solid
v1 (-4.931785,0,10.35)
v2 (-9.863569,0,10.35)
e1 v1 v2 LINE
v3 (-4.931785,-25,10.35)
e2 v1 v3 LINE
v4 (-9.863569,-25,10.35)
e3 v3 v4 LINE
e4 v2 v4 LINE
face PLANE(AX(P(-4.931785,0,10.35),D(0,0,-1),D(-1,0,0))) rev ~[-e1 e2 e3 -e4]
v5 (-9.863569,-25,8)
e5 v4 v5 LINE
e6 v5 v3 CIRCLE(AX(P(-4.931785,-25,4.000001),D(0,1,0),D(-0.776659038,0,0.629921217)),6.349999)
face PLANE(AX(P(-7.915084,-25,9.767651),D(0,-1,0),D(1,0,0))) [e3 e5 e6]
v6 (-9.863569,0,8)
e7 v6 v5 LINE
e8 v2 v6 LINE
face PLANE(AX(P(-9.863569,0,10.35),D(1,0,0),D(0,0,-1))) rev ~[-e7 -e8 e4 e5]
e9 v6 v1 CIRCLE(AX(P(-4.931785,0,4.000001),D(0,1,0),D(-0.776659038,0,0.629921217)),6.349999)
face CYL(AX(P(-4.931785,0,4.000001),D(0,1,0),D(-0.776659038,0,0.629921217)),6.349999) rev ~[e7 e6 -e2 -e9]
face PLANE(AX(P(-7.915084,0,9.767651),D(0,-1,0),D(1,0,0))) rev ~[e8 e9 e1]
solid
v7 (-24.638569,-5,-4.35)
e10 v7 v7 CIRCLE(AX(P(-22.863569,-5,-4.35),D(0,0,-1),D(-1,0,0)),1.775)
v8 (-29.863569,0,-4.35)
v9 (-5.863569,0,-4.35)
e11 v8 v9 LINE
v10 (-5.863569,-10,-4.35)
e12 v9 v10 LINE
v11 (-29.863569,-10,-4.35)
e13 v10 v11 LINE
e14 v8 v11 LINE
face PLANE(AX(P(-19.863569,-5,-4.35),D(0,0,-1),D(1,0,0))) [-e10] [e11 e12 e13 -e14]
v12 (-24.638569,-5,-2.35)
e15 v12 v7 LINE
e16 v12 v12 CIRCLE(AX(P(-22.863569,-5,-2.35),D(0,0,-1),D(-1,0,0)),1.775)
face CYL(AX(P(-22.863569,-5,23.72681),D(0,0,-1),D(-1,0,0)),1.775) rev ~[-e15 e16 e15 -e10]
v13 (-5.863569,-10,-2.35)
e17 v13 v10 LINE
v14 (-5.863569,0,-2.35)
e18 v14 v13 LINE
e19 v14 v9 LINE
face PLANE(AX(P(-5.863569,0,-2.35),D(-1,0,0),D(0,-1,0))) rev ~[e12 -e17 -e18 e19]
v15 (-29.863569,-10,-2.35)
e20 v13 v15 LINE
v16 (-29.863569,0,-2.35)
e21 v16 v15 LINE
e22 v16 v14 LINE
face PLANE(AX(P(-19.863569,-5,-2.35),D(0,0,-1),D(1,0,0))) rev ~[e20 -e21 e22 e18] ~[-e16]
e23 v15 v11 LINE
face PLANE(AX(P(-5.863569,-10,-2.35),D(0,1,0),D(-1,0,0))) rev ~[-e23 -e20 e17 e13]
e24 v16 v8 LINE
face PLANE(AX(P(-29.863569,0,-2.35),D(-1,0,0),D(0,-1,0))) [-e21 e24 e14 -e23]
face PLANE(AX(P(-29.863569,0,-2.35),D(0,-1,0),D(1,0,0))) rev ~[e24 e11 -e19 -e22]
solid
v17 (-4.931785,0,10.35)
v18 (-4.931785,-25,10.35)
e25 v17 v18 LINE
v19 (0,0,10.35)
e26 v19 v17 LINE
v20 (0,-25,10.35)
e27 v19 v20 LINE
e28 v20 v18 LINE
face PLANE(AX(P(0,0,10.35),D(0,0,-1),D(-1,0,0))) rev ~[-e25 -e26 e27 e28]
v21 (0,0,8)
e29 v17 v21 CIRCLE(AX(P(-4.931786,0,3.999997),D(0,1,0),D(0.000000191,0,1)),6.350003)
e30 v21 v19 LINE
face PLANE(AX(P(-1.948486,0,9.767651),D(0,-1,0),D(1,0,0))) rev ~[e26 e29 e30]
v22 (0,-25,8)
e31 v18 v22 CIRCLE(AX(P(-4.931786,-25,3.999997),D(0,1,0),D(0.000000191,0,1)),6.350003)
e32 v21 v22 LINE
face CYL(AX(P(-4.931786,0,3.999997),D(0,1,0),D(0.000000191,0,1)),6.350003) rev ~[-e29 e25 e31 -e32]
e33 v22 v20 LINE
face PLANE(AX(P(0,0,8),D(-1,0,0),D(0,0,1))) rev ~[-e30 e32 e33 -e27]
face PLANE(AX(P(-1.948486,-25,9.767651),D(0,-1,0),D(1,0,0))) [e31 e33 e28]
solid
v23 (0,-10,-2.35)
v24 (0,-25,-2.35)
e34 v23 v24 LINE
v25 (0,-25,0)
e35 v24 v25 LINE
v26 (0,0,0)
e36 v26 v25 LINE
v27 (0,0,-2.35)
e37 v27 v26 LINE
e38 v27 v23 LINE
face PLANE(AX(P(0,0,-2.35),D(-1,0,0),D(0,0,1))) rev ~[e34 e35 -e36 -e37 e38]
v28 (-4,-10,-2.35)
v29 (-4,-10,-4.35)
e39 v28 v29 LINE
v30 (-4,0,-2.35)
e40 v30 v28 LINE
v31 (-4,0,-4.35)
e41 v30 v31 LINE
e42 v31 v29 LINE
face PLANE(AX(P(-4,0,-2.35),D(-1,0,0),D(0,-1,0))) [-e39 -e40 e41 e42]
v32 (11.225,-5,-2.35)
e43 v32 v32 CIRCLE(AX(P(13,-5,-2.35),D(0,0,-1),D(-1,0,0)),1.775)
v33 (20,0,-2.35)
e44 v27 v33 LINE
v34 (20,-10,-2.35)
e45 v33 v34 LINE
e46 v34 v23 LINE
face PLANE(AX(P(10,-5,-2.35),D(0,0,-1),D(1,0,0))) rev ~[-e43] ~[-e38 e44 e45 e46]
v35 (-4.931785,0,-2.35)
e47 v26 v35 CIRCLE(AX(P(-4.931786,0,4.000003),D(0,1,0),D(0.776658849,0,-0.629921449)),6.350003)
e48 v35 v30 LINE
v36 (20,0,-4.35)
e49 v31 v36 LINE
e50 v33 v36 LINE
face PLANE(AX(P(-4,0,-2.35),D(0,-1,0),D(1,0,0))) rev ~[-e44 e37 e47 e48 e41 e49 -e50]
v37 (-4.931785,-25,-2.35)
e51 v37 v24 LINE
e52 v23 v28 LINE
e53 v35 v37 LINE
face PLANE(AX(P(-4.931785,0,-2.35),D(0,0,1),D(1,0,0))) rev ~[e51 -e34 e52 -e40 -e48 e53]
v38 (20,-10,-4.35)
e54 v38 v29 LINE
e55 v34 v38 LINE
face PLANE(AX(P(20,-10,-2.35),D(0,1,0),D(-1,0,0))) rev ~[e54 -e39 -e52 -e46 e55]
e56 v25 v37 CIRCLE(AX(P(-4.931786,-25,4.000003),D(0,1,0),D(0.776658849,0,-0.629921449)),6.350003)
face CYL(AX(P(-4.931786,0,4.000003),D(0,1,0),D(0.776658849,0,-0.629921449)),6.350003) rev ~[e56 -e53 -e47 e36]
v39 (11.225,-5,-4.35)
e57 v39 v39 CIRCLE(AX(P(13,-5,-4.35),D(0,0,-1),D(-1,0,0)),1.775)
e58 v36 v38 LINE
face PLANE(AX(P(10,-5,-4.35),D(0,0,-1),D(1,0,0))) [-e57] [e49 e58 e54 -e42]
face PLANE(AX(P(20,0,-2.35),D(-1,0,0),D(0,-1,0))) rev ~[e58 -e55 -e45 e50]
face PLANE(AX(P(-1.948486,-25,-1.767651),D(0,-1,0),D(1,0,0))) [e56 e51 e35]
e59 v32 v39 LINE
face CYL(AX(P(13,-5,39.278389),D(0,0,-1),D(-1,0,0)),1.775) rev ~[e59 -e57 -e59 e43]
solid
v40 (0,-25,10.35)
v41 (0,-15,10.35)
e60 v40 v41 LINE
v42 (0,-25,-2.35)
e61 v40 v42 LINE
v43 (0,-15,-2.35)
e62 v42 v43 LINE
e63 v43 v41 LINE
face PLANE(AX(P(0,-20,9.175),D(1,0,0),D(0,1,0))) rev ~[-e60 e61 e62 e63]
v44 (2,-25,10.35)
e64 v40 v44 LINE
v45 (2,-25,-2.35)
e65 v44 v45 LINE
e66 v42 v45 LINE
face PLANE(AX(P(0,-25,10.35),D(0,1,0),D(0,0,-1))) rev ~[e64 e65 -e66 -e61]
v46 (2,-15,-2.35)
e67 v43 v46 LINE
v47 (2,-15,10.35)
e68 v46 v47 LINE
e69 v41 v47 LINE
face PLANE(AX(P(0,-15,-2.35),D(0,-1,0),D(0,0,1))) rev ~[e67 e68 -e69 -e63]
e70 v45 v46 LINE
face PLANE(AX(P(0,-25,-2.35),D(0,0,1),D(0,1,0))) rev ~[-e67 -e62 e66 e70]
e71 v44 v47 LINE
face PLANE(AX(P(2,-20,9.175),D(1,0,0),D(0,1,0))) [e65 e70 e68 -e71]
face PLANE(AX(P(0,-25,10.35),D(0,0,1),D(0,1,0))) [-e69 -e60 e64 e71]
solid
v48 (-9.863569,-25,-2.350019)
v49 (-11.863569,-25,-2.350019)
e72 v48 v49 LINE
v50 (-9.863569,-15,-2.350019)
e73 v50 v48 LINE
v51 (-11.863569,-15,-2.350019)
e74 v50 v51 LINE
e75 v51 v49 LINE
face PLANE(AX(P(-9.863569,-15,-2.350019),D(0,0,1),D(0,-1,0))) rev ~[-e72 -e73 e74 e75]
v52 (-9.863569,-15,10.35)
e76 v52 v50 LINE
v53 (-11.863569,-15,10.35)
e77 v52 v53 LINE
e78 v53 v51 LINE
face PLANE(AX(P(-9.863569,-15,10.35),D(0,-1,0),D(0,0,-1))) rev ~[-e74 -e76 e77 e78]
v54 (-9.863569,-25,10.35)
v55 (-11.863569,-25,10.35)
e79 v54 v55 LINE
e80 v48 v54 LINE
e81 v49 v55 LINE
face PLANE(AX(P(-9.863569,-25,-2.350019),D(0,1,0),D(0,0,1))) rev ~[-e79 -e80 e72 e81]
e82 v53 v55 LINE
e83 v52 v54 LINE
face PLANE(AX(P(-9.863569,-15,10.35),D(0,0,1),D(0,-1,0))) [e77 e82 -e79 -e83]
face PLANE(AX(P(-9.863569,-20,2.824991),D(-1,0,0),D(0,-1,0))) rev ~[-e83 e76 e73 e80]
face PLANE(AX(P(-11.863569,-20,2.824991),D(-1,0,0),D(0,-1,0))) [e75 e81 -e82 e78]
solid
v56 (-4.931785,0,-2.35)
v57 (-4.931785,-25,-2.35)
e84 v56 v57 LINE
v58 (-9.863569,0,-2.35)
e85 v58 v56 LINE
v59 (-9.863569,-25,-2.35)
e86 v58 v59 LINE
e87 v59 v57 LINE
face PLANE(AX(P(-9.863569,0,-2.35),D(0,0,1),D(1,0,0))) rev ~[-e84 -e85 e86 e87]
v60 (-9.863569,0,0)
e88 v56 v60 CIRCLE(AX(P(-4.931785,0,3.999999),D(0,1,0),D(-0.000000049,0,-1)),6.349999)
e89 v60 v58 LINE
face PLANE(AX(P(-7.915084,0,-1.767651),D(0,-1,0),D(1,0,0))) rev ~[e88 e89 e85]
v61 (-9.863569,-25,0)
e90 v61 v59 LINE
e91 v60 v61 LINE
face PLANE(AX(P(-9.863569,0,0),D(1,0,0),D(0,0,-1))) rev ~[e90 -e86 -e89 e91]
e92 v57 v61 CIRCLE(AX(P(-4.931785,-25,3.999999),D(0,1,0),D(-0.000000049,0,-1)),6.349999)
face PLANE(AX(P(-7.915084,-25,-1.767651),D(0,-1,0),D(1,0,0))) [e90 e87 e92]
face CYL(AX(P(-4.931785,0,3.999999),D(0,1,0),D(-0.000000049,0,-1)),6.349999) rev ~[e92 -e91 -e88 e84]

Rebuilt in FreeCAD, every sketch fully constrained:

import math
import FreeCAD as App
import Part
import Sketcher


def add_polygon(sketch, points):
    """Adds a closed chain of lines whose ends are joined by coincident constraints."""
    first, n = sketch.GeometryCount, len(points)
    for a, b in zip(points, points[1:] + points[:1]):
        sketch.addGeometry(Part.LineSegment(App.Vector(*a, 0), App.Vector(*b, 0)), False)
    for i in range(n):
        sketch.addConstraint(Sketcher.Constraint("Coincident", first + i, 2, first + (i + 1) % n, 1))

doc = App.newDocument("Part")
body = doc.addObject("PartDesign::Body", "Body")
body.AllowCompound = True

# Sketch on XZ plane
sketch1 = doc.addObject("Sketcher::SketchObject", "Sketch")
body.addObject(sketch1)
sketch1.AttachmentSupport = (doc.XZ_Plane, [""])
sketch1.MapMode = "FlatFace"
sketch1.addGeometry(Part.LineSegment(App.Vector(-9.9, 10.3, 0), App.Vector(-9.9, 8, 0)), False)
sketch1.addGeometry(Part.ArcOfCircle(Part.Circle(App.Vector(-4.9, 4, 0), App.Vector(0, 0, 1), 6.3), math.radians(90), math.radians(141)), False)
sketch1.addGeometry(Part.LineSegment(App.Vector(-4.9, 10.3, 0), App.Vector(-9.9, 10.3, 0)), False)
sketch1.addGeometry(Part.LineSegment(App.Vector(0, 10.3, 0), App.Vector(-4.9, 10.3, 0)), False)
sketch1.addGeometry(Part.ArcOfCircle(Part.Circle(App.Vector(-4.9, 4, 0), App.Vector(0, 0, 1), 6.4), math.radians(39), math.radians(90)), False)
sketch1.addGeometry(Part.LineSegment(App.Vector(0, 8, 0), App.Vector(0, 10.3, 0)), False)
sketch1.addGeometry(Part.ArcOfCircle(Part.Circle(App.Vector(-4.9, 4, 0), App.Vector(0, 0, 1), 6.3), math.radians(-141), math.radians(-90)), False)
sketch1.addGeometry(Part.LineSegment(App.Vector(-9.9, 0, 0), App.Vector(-9.9, -2.4, 0)), False)
sketch1.addGeometry(Part.LineSegment(App.Vector(-9.9, -2.4, 0), App.Vector(-4.9, -2.4, 0)), False)
sketch1.addGeometry(Part.ArcOfCircle(Part.Circle(App.Vector(-4.9, 4, 0), App.Vector(0, 0, 1), 6.4), math.radians(-90), math.radians(-39)), False)
sketch1.addGeometry(Part.LineSegment(App.Vector(-4.9, -2.4, 0), App.Vector(0, -2.4, 0)), False)
sketch1.addGeometry(Part.LineSegment(App.Vector(0, -2.4, 0), App.Vector(0, 0, 0)), False)
sketch1.addConstraint(Sketcher.Constraint("Coincident", 0, 2, 1, 2))
sketch1.addConstraint(Sketcher.Constraint("Tangent", 1, 1, 2, 1))
sketch1.addConstraint(Sketcher.Constraint("Coincident", 2, 2, 0, 1))
sketch1.addConstraint(Sketcher.Constraint("Tangent", 3, 2, 4, 2))
sketch1.addConstraint(Sketcher.Constraint("Coincident", 4, 1, 5, 1))
sketch1.addConstraint(Sketcher.Constraint("Coincident", 5, 2, 3, 1))
sketch1.addConstraint(Sketcher.Constraint("Coincident", 6, 1, 7, 1))
sketch1.addConstraint(Sketcher.Constraint("Coincident", 7, 2, 8, 1))
sketch1.addConstraint(Sketcher.Constraint("Tangent", 8, 2, 6, 2))
sketch1.addConstraint(Sketcher.Constraint("Tangent", 9, 1, 10, 1))
sketch1.addConstraint(Sketcher.Constraint("Coincident", 10, 2, 11, 1))
sketch1.addConstraint(Sketcher.Constraint("Coincident", 11, 2, 9, 2))
sketch1.addConstraint(Sketcher.Constraint("Vertical", 0))
sketch1.addConstraint(Sketcher.Constraint("Horizontal", 2))
sketch1.addConstraint(Sketcher.Constraint("Horizontal", 3))
sketch1.addConstraint(Sketcher.Constraint("Vertical", 5))
sketch1.addConstraint(Sketcher.Constraint("Vertical", 7))
sketch1.addConstraint(Sketcher.Constraint("Horizontal", 8))
sketch1.addConstraint(Sketcher.Constraint("Horizontal", 10))
sketch1.addConstraint(Sketcher.Constraint("Vertical", 11))
sketch1.addConstraint(Sketcher.Constraint("Coincident", 11, 2, -1, 1))
sketch1.addConstraint(Sketcher.Constraint("Coincident", 4, 3, 1, 3))
sketch1.addConstraint(Sketcher.Constraint("Coincident", 6, 3, 1, 3))
sketch1.addConstraint(Sketcher.Constraint("Coincident", 9, 3, 1, 3))
sketch1.addConstraint(Sketcher.Constraint("Equal", 1, 6))
sketch1.addConstraint(Sketcher.Constraint("Equal", 4, 9))
sketch1.addConstraint(Sketcher.Constraint("PointOnObject", 4, 1, -2))
sketch1.addConstraint(Sketcher.Constraint("PointOnObject", 6, 1, -1))
sketch1.addConstraint(Sketcher.Constraint("Horizontal", 2, 2, 3, 2))
sketch1.addConstraint(Sketcher.Constraint("Horizontal", 0, 2, 4, 1))
sketch1.addConstraint(Sketcher.Constraint("Radius", 1, 6.349999))
sketch1.addConstraint(Sketcher.Constraint("DistanceY", -1, 1, 1, 3, 4.000001))
pad1 = doc.addObject("PartDesign::Pad", "Pad")
body.addObject(pad1)
pad1.Profile = sketch1
pad1.Length = 25

# Sketch on XY plane
sketch2 = doc.addObject("Sketcher::SketchObject", "Sketch001")
body.addObject(sketch2)
sketch2.AttachmentSupport = (doc.XY_Plane, [""])
sketch2.MapMode = "FlatFace"
sketch2.AttachmentOffset = App.Placement(App.Vector(0, 0, -2.35), App.Rotation())
add_polygon(sketch2, [(20, 0), (20, -10), (-4, -10), (-4, 0)])  # lines 0-3
sketch2.addConstraint(Sketcher.Constraint("Vertical", 0))
sketch2.addConstraint(Sketcher.Constraint("Horizontal", 1))
sketch2.addConstraint(Sketcher.Constraint("Vertical", 2))
sketch2.addConstraint(Sketcher.Constraint("Horizontal", 3))
sketch2.addConstraint(Sketcher.Constraint("PointOnObject", 2, 2, -1))
sketch2.addConstraint(Sketcher.Constraint("DistanceX", 1, 2, 1, 1, 24.0))
sketch2.addConstraint(Sketcher.Constraint("DistanceY", 0, 2, 0, 1, 10.0))
sketch2.addConstraint(Sketcher.Constraint("DistanceX", -1, 1, 0, 2, 20.0))
pad2 = doc.addObject("PartDesign::Pad", "Pad001")
body.addObject(pad2)
pad2.Profile = sketch2
pad2.Length = 2
pad2.Reversed = True

# Sketch on XY plane
sketch3 = doc.addObject("Sketcher::SketchObject", "Sketch002")
body.addObject(sketch3)
sketch3.AttachmentSupport = (doc.XY_Plane, [""])
sketch3.MapMode = "FlatFace"
sketch3.AttachmentOffset = App.Placement(App.Vector(0, 0, -2.35), App.Rotation())
sketch3.addGeometry(Part.Circle(App.Vector(13, -5, 0), App.Vector(0, 0, 1), 1.8), False)
sketch3.addConstraint(Sketcher.Constraint("Diameter", 0, 3.55))
sketch3.addConstraint(Sketcher.Constraint("DistanceX", -1, 1, 0, 3, 13.0))
sketch3.addConstraint(Sketcher.Constraint("DistanceY", 0, 3, -1, 1, 5.0))
doc.recompute()
hole = doc.addObject("PartDesign::Hole", "Hole")
body.addObject(hole)
hole.Profile = sketch3
hole.ThreadType = "None"
hole.Diameter = 3.55
hole.DepthType = "ThroughAll"
body2 = doc.addObject("PartDesign::Body", "Body001")

# Sketch on YZ plane
sketch4 = doc.addObject("Sketcher::SketchObject", "Sketch003")
body2.addObject(sketch4)
sketch4.AttachmentSupport = (doc.getObject("YZ_Plane001"), [""])
sketch4.MapMode = "FlatFace"
sketch4.AttachmentOffset = App.Placement(App.Vector(0, 0, -9.863569), App.Rotation())
add_polygon(sketch4, [(-15, -2), (-25, -2), (-25, 10), (-15, 10)])  # lines 0-3
sketch4.addConstraint(Sketcher.Constraint("Horizontal", 0))
sketch4.addConstraint(Sketcher.Constraint("Vertical", 1))
sketch4.addConstraint(Sketcher.Constraint("Horizontal", 2))
sketch4.addConstraint(Sketcher.Constraint("Vertical", 3))
sketch4.addConstraint(Sketcher.Constraint("DistanceX", 0, 2, 0, 1, 10.0))
sketch4.addConstraint(Sketcher.Constraint("DistanceX", 0, 2, -1, 1, 25.0))
sketch4.addConstraint(Sketcher.Constraint("DistanceY", -1, 1, 1, 2, 10.35))
sketch4.addConstraint(Sketcher.Constraint("DistanceY", 1, 1, 1, 2, 12.700018))
pad3 = doc.addObject("PartDesign::Pad", "Pad002")
body2.addObject(pad3)
pad3.Profile = sketch4
pad3.Length = 2
pad3.Reversed = True
body3 = doc.addObject("PartDesign::Body", "Body002")

# Sketch on YZ plane
sketch5 = doc.addObject("Sketcher::SketchObject", "Sketch004")
body3.addObject(sketch5)
sketch5.AttachmentSupport = (doc.getObject("YZ_Plane002"), [""])
sketch5.MapMode = "FlatFace"
add_polygon(sketch5, [(-25, 10), (-25, -2), (-15, -2), (-15, 10)])  # lines 0-3
sketch5.addConstraint(Sketcher.Constraint("Vertical", 0))
sketch5.addConstraint(Sketcher.Constraint("Horizontal", 1))
sketch5.addConstraint(Sketcher.Constraint("Vertical", 2))
sketch5.addConstraint(Sketcher.Constraint("Horizontal", 3))
sketch5.addConstraint(Sketcher.Constraint("DistanceX", 1, 1, 1, 2, 10.0))
sketch5.addConstraint(Sketcher.Constraint("DistanceY", 0, 2, 0, 1, 12.7))
sketch5.addConstraint(Sketcher.Constraint("DistanceX", 0, 2, -1, 1, 25.0))
sketch5.addConstraint(Sketcher.Constraint("DistanceY", 0, 2, -1, 1, 2.35))
pad4 = doc.addObject("PartDesign::Pad", "Pad003")
body3.addObject(pad4)
pad4.Profile = sketch5
pad4.Length = 2
body4 = doc.addObject("PartDesign::Body", "Body003")

# Sketch on XY plane
sketch6 = doc.addObject("Sketcher::SketchObject", "Sketch005")
body4.addObject(sketch6)
sketch6.AttachmentSupport = (doc.getObject("XY_Plane003"), [""])
sketch6.MapMode = "FlatFace"
sketch6.AttachmentOffset = App.Placement(App.Vector(0, 0, -2.35), App.Rotation())
add_polygon(sketch6, [(-30, -10), (-30, 0), (-6, 0), (-6, -10)])  # lines 0-3
sketch6.addConstraint(Sketcher.Constraint("Vertical", 0))
sketch6.addConstraint(Sketcher.Constraint("Horizontal", 1))
sketch6.addConstraint(Sketcher.Constraint("Vertical", 2))
sketch6.addConstraint(Sketcher.Constraint("Horizontal", 3))
sketch6.addConstraint(Sketcher.Constraint("PointOnObject", 0, 2, -1))
sketch6.addConstraint(Sketcher.Constraint("DistanceX", 1, 1, 1, 2, 24.0))
sketch6.addConstraint(Sketcher.Constraint("DistanceY", 0, 1, 0, 2, 10.0))
sketch6.addConstraint(Sketcher.Constraint("DistanceX", 0, 2, -1, 1, 29.863569))
pad5 = doc.addObject("PartDesign::Pad", "Pad004")
body4.addObject(pad5)
pad5.Profile = sketch6
pad5.Length = 2
pad5.Reversed = True

# Sketch on XY plane
sketch7 = doc.addObject("Sketcher::SketchObject", "Sketch006")
body4.addObject(sketch7)
sketch7.AttachmentSupport = (doc.getObject("XY_Plane003"), [""])
sketch7.MapMode = "FlatFace"
sketch7.AttachmentOffset = App.Placement(App.Vector(0, 0, -2.35), App.Rotation())
sketch7.addGeometry(Part.Circle(App.Vector(-22.9, -5, 0), App.Vector(0, 0, 1), 1.8), False)
sketch7.addConstraint(Sketcher.Constraint("Diameter", 0, 3.55))
sketch7.addConstraint(Sketcher.Constraint("DistanceY", 0, 3, -1, 1, 5.0))
sketch7.addConstraint(Sketcher.Constraint("DistanceX", 0, 3, -1, 1, 22.863569))
doc.recompute()
hole2 = doc.addObject("PartDesign::Hole", "Hole001")
body4.addObject(hole2)
hole2.Profile = sketch7
hole2.ThreadType = "None"
hole2.Diameter = 3.55
hole2.DepthType = "ThroughAll"

doc.recompute()
